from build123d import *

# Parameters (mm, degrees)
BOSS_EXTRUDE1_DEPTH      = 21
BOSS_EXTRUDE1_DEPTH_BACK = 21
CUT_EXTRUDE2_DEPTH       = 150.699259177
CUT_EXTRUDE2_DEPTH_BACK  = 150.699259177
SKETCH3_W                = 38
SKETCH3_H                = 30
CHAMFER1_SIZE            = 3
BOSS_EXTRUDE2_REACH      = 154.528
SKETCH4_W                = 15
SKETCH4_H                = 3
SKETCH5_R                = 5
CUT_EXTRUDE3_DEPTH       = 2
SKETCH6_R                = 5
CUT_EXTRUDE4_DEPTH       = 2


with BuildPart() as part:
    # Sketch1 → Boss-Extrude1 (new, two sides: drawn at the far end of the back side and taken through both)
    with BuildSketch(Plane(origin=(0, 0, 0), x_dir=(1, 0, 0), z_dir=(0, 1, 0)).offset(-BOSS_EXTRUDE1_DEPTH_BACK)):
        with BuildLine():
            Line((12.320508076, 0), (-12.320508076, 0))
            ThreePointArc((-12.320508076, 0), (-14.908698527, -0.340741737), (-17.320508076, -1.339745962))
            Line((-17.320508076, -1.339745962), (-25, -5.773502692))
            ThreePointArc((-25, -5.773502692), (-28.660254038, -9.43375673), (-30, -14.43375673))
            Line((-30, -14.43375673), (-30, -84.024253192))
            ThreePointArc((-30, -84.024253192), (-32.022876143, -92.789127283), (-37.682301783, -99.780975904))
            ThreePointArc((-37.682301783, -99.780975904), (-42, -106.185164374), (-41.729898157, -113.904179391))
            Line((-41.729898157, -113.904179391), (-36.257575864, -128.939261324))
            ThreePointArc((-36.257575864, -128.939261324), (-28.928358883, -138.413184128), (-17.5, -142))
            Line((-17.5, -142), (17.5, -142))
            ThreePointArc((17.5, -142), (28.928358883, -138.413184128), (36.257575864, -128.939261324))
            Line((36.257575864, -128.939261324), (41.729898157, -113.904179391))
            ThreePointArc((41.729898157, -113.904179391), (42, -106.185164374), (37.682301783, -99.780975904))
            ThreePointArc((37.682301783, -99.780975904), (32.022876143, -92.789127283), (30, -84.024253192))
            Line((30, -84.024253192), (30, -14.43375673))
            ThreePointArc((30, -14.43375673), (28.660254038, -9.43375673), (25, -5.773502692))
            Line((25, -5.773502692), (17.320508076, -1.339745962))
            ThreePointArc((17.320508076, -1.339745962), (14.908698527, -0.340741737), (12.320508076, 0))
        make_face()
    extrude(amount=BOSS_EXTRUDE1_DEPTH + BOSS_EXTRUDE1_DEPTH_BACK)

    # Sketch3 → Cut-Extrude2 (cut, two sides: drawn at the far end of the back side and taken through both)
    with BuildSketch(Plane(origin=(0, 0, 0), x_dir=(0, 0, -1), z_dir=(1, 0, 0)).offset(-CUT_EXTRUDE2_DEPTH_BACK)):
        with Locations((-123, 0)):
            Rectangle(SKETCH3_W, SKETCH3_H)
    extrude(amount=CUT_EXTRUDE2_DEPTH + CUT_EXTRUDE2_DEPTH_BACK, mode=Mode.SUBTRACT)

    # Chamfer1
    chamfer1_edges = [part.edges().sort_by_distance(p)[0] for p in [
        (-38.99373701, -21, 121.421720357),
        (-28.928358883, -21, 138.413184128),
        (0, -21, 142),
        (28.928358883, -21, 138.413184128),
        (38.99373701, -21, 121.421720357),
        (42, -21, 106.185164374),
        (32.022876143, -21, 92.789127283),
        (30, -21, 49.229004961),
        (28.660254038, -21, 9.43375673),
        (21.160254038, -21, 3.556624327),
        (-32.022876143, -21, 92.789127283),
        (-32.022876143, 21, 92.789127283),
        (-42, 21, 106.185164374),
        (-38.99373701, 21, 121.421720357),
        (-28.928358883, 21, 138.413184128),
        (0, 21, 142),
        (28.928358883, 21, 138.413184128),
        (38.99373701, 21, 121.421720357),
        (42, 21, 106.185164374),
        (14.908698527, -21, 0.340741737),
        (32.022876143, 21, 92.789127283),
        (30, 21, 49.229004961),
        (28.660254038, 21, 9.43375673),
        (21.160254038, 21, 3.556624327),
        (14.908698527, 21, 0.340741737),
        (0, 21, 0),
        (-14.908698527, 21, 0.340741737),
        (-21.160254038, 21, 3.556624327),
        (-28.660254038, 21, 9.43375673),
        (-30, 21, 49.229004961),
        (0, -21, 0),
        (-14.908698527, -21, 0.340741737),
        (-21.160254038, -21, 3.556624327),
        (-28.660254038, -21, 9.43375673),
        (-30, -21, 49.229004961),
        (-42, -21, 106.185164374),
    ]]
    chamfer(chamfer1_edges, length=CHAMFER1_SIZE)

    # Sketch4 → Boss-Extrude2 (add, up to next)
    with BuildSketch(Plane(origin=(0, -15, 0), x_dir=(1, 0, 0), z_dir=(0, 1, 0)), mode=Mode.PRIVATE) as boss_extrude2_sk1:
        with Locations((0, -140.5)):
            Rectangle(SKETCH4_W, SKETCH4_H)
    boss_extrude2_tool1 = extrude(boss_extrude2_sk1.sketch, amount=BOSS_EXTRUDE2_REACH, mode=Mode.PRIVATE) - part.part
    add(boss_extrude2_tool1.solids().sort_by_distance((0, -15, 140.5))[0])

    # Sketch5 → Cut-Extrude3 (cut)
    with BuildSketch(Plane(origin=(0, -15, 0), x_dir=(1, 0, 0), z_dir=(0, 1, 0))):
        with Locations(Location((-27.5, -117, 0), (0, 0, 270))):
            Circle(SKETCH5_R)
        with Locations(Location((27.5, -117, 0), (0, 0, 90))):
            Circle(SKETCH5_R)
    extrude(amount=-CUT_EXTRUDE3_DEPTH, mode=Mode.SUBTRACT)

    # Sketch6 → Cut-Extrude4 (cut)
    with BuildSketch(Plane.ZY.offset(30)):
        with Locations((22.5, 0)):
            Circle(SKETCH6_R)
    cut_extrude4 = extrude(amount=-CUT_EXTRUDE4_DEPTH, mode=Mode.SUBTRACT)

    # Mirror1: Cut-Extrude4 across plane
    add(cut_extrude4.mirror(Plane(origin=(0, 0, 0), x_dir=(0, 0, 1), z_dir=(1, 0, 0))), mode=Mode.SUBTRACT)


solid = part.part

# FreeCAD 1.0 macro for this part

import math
import FreeCAD as App
import Part
import Sketcher
Q = App.Units.Quantity


def edges_at(feature, points):
    """Names of the edges that pass closest to the given points."""
    edges = feature.Shape.Edges
    near = lambda p: min(range(len(edges)), key=lambda i: edges[i].distToShape(Part.Vertex(*p))[0])
    return sorted({f"Edge{near(p) + 1}" for p in points})


def add_polygon(sketch, points):
    """Adds a closed chain of lines whose ends are joined by coincident constraints."""
    first, n = sketch.GeometryCount, len(points)
    for a, b in zip(points, points[1:] + points[:1]):
        sketch.addGeometry(Part.LineSegment(App.Vector(*a, 0), App.Vector(*b, 0)), False)
    for i in range(n):
        sketch.addConstraint(Sketcher.Constraint("Coincident", first + i, 2, first + (i + 1) % n, 1))

doc = App.newDocument("Part")
body = doc.addObject("PartDesign::Body", "Body")

# Sketch on XZ plane
sketch1 = doc.addObject("Sketcher::SketchObject", "Sketch")
body.addObject(sketch1)
sketch1.AttachmentSupport = (doc.XZ_Plane, [""])
sketch1.MapMode = "FlatFace"
sketch1.addGeometry([
    Part.LineSegment(App.Vector(12.320508, 0, 0), App.Vector(-12.320508, 0, 0)),  # 0
    Part.ArcOfCircle(Part.Circle(App.Vector(-12.320508, 10, 0), App.Vector(0, 0, 1), 10), math.radians(-120), math.radians(-90)),  # 1
    Part.LineSegment(App.Vector(-17.320508, 1.339746, 0), App.Vector(-25, 5.773503, 0)),  # 2
    Part.ArcOfCircle(Part.Circle(App.Vector(-20, 14.433757, 0), App.Vector(0, 0, 1), 10), math.radians(180), math.radians(240)),  # 3
    Part.LineSegment(App.Vector(-30, 14.433757, 0), App.Vector(-30, 84.024253, 0)),  # 4
    Part.ArcOfCircle(Part.Circle(App.Vector(-50, 84.024253, 0), App.Vector(0, 0, 1), 20), math.radians(0), math.radians(51.983752)),  # 5
    Part.ArcOfCircle(Part.Circle(App.Vector(-29.98374, 109.628928, 0), App.Vector(0, 0, 1), 12.5), math.radians(160), math.radians(231.983752)),  # 6
    Part.LineSegment(App.Vector(-41.729898, 113.904179, 0), App.Vector(-36.257576, 128.939261, 0)),  # 7
    Part.ArcOfCircle(Part.Circle(App.Vector(-17.5, 122, 0), App.Vector(0, 0, 1), 20), math.radians(90), math.radians(159.698325)),  # 8
    Part.LineSegment(App.Vector(-17.5, 142, 0), App.Vector(17.5, 142, 0)),  # 9
    Part.ArcOfCircle(Part.Circle(App.Vector(17.5, 122, 0), App.Vector(0, 0, 1), 20), math.radians(20.301675), math.radians(90)),  # 10
    Part.LineSegment(App.Vector(36.257576, 128.939261, 0), App.Vector(41.729898, 113.904179, 0)),  # 11
    Part.ArcOfCircle(Part.Circle(App.Vector(29.98374, 109.628928, 0), App.Vector(0, 0, 1), 12.5), math.radians(-51.983752), math.radians(20)),  # 12
    Part.ArcOfCircle(Part.Circle(App.Vector(50, 84.024253, 0), App.Vector(0, 0, 1), 20), math.radians(128.016248), math.radians(180)),  # 13
    Part.LineSegment(App.Vector(30, 84.024253, 0), App.Vector(30, 14.433757, 0)),  # 14
    Part.ArcOfCircle(Part.Circle(App.Vector(20, 14.433757, 0), App.Vector(0, 0, 1), 10), math.radians(-60), math.radians(0)),  # 15
    Part.LineSegment(App.Vector(25, 5.773503, 0), App.Vector(17.320508, 1.339746, 0)),  # 16
    Part.ArcOfCircle(Part.Circle(App.Vector(12.320508, 10, 0), App.Vector(0, 0, 1), 10), math.radians(-90), math.radians(-60)),  # 17
], False)
sketch1.addConstraint([
    Sketcher.Constraint("Tangent", 0, 2, 1, 2),
    Sketcher.Constraint("Tangent", 1, 1, 2, 1),
    Sketcher.Constraint("Tangent", 2, 2, 3, 2),
    Sketcher.Constraint("Tangent", 3, 1, 4, 1),
    Sketcher.Constraint("Tangent", 4, 2, 5, 1),
    Sketcher.Constraint("Tangent", 5, 2, 6, 2),
    Sketcher.Constraint("Tangent", 6, 1, 7, 1),
    Sketcher.Constraint("Coincident", 7, 2, 8, 2),
    Sketcher.Constraint("Tangent", 8, 1, 9, 1),
    Sketcher.Constraint("Tangent", 9, 2, 10, 2),
    Sketcher.Constraint("Coincident", 10, 1, 11, 1),
    Sketcher.Constraint("Tangent", 11, 2, 12, 2),
    Sketcher.Constraint("Tangent", 12, 1, 13, 1),
    Sketcher.Constraint("Tangent", 13, 2, 14, 1),
    Sketcher.Constraint("Tangent", 14, 2, 15, 2),
    Sketcher.Constraint("Tangent", 15, 1, 16, 1),
    Sketcher.Constraint("Tangent", 16, 2, 17, 2),
    Sketcher.Constraint("Tangent", 17, 1, 0, 1),
    Sketcher.Constraint("Horizontal", 0),
    Sketcher.Constraint("Vertical", 4),
    Sketcher.Constraint("Horizontal", 9),
    Sketcher.Constraint("Vertical", 14),
    Sketcher.Constraint("Equal", 1, 3),
    Sketcher.Constraint("Equal", 5, 8),
    Sketcher.Constraint("Equal", 8, 10),
    Sketcher.Constraint("Equal", 6, 12),
    Sketcher.Constraint("Equal", 10, 13),
    Sketcher.Constraint("Equal", 3, 15),
    Sketcher.Constraint("Equal", 15, 17),
    Sketcher.Constraint("Symmetric", 0, 2, 17, 1, -1, 1),
    Sketcher.Constraint("Symmetric", 6, 3, 12, 3, -2),
    Sketcher.Constraint("Symmetric", 3, 3, 15, 3, -2),
    Sketcher.Constraint("Symmetric", 7, 2, 10, 1, -2),
    Sketcher.Constraint("Radius", 1, Q("10 mm")),
    Sketcher.Constraint("Radius", 5, Q("20 mm")),
    Sketcher.Constraint("Radius", 6, Q("12.5 mm")),
    Sketcher.Constraint("DistanceX", 9, 1, 9, 2, Q("35 mm")),
    Sketcher.Constraint("Angle", 2, Q("150 deg")),
    Sketcher.Constraint("Angle", 7, Q("70 deg")),
    Sketcher.Constraint("Distance", 7, Q("16 mm")),
    Sketcher.Constraint("DistanceX", 3, 3, -1, 1, Q("20 mm")),
    Sketcher.Constraint("DistanceY", -1, 1, 8, 3, Q("122 mm")),
    Sketcher.Constraint("DistanceX", 5, 2, -1, 1, Q("37.682302 mm")),
    Sketcher.Constraint("DistanceX", 0, 2, 0, 1, Q("24.641016 mm")),
])
pad1 = doc.addObject("PartDesign::Pad", "Pad")
body.addObject(pad1)
pad1.Profile = sketch1
pad1.Type = "TwoLengths"
pad1.Length = 21
pad1.Length2 = 21
pad1.Reversed = True

# Sketch on YZ plane
sketch2 = doc.addObject("Sketcher::SketchObject", "Sketch001")
body.addObject(sketch2)
sketch2.AttachmentSupport = (doc.YZ_Plane, [""])
sketch2.MapMode = "FlatFace"
add_polygon(sketch2, [(15, 142), (-15, 142), (-15, 104), (15, 104)])  # lines 0-3
sketch2.addConstraint([
    Sketcher.Constraint("Horizontal", 0),
    Sketcher.Constraint("Vertical", 1),
    Sketcher.Constraint("Horizontal", 2),
    Sketcher.Constraint("Vertical", 3),
    Sketcher.Constraint("DistanceX", 0, 2, 0, 1, Q("30 mm")),
    Sketcher.Constraint("DistanceY", 1, 2, 1, 1, Q("38 mm")),
    Sketcher.Constraint("DistanceX", 0, 2, -1, 1, Q("15 mm")),
    Sketcher.Constraint("DistanceY", -1, 1, 0, 2, Q("142 mm")),
])
pocket1 = doc.addObject("PartDesign::Pocket", "Pocket")
body.addObject(pocket1)
pocket1.Profile = sketch2
pocket1.Type = "ThroughAll"
pocket1.Midplane = True
doc.recompute()

chamfer = doc.addObject("PartDesign::Chamfer", "Chamfer")
body.addObject(chamfer)
chamfer.Base = (pocket1, edges_at(pocket1, [
    (-38.994, -21, 121.422),
    (-28.928, -21, 138.413),
    (0, -21, 142),
    (28.928, -21, 138.413),
    (38.994, -21, 121.422),
    (42, -21, 106.185),
    (32.023, -21, 92.789),
    (30, -21, 49.229),
    (28.66, -21, 9.434),
    (21.16, -21, 3.557),
    (-32.023, -21, 92.789),
    (-32.023, 21, 92.789),
    (-42, 21, 106.185),
    (-38.994, 21, 121.422),
    (-28.928, 21, 138.413),
    (0, 21, 142),
    (28.928, 21, 138.413),
    (38.994, 21, 121.422),
    (42, 21, 106.185),
    (14.909, -21, 0.341),
    (32.023, 21, 92.789),
    (30, 21, 49.229),
    (28.66, 21, 9.434),
    (21.16, 21, 3.557),
    (14.909, 21, 0.341),
    (0, 21, 0),
    (-14.909, 21, 0.341),
    (-21.16, 21, 3.557),
    (-28.66, 21, 9.434),
    (-30, 21, 49.229),
    (0, -21, 0),
    (-14.909, -21, 0.341),
    (-21.16, -21, 3.557),
    (-28.66, -21, 9.434),
    (-30, -21, 49.229),
    (-42, -21, 106.185),
]))
chamfer.Size = 3

# Sketch on XZ plane
sketch3 = doc.addObject("Sketcher::SketchObject", "Sketch002")
body.addObject(sketch3)
sketch3.AttachmentSupport = (doc.XZ_Plane, [""])
sketch3.MapMode = "FlatFace"
sketch3.AttachmentOffset = App.Placement(App.Vector(0, 0, 15), App.Rotation())
add_polygon(sketch3, [(-7.5, 139), (-7.5, 142), (7.5, 142), (7.5, 139)])  # lines 0-3
sketch3.addConstraint([
    Sketcher.Constraint("Vertical", 0),
    Sketcher.Constraint("Horizontal", 1),
    Sketcher.Constraint("Vertical", 2),
    Sketcher.Constraint("Horizontal", 3),
    Sketcher.Constraint("DistanceX", 1, 1, 1, 2, Q("15 mm")),
    Sketcher.Constraint("DistanceY", 0, 1, 0, 2, Q("3 mm")),
    Sketcher.Constraint("DistanceY", -1, 1, 0, 2, Q("142 mm")),
    Sketcher.Constraint("DistanceX", 0, 2, -1, 1, Q("7.5 mm")),
])
pad2 = doc.addObject("PartDesign::Pad", "Pad001")
body.addObject(pad2)
pad2.Profile = sketch3
pad2.Type = "UpToFirst"
pad2.Reversed = True

# Sketch on XZ plane
sketch4 = doc.addObject("Sketcher::SketchObject", "Sketch003")
body.addObject(sketch4)
sketch4.AttachmentSupport = (doc.XZ_Plane, [""])
sketch4.MapMode = "FlatFace"
sketch4.AttachmentOffset = App.Placement(App.Vector(0, 0, 15), App.Rotation())
sketch4.addGeometry([
    Part.Circle(App.Vector(-27.5, 117, 0), App.Vector(0, 0, 1), 5),
    Part.Circle(App.Vector(27.5, 117, 0), App.Vector(0, 0, 1), 5),
], False)
sketch4.addConstraint([
    Sketcher.Constraint("Equal", 0, 1),
    Sketcher.Constraint("Symmetric", 0, 3, 1, 3, -2),
    Sketcher.Constraint("Diameter", 0, Q("10 mm")),
    Sketcher.Constraint("DistanceY", -1, 1, 0, 3, Q("117 mm")),
    Sketcher.Constraint("DistanceX", 0, 3, 1, 3, Q("55 mm")),
])
pocket2 = doc.addObject("PartDesign::Pocket", "Pocket001")
body.addObject(pocket2)
pocket2.Profile = sketch4
pocket2.Length = 2
pocket2.Reversed = True

# Sketch on YZ plane
sketch5 = doc.addObject("Sketcher::SketchObject", "Sketch004")
body.addObject(sketch5)
sketch5.AttachmentSupport = (doc.YZ_Plane, [""])
sketch5.MapMode = "FlatFace"
sketch5.AttachmentOffset = App.Placement(App.Vector(0, 0, -30), App.Rotation())
sketch5.addGeometry(Part.Circle(App.Vector(0, 22.5, 0), App.Vector(0, 0, 1), 5), False)
sketch5.addConstraint([
    Sketcher.Constraint("PointOnObject", 0, 3, -2),
    Sketcher.Constraint("Diameter", 0, Q("10 mm")),
    Sketcher.Constraint("DistanceY", -1, 1, 0, 3, Q("22.5 mm")),
])
pocket3 = doc.addObject("PartDesign::Pocket", "Pocket002")
body.addObject(pocket3)
pocket3.Profile = sketch5
pocket3.Length = 2
pocket3.Reversed = True
doc.recompute()

mirrored = doc.addObject("PartDesign::Mirrored", "Mirrored")
body.addObject(mirrored)
mirrored.Originals = [pocket3]
mirrored.MirrorPlane = (doc.YZ_Plane, [""])
body.Tip = mirrored

doc.recompute()
